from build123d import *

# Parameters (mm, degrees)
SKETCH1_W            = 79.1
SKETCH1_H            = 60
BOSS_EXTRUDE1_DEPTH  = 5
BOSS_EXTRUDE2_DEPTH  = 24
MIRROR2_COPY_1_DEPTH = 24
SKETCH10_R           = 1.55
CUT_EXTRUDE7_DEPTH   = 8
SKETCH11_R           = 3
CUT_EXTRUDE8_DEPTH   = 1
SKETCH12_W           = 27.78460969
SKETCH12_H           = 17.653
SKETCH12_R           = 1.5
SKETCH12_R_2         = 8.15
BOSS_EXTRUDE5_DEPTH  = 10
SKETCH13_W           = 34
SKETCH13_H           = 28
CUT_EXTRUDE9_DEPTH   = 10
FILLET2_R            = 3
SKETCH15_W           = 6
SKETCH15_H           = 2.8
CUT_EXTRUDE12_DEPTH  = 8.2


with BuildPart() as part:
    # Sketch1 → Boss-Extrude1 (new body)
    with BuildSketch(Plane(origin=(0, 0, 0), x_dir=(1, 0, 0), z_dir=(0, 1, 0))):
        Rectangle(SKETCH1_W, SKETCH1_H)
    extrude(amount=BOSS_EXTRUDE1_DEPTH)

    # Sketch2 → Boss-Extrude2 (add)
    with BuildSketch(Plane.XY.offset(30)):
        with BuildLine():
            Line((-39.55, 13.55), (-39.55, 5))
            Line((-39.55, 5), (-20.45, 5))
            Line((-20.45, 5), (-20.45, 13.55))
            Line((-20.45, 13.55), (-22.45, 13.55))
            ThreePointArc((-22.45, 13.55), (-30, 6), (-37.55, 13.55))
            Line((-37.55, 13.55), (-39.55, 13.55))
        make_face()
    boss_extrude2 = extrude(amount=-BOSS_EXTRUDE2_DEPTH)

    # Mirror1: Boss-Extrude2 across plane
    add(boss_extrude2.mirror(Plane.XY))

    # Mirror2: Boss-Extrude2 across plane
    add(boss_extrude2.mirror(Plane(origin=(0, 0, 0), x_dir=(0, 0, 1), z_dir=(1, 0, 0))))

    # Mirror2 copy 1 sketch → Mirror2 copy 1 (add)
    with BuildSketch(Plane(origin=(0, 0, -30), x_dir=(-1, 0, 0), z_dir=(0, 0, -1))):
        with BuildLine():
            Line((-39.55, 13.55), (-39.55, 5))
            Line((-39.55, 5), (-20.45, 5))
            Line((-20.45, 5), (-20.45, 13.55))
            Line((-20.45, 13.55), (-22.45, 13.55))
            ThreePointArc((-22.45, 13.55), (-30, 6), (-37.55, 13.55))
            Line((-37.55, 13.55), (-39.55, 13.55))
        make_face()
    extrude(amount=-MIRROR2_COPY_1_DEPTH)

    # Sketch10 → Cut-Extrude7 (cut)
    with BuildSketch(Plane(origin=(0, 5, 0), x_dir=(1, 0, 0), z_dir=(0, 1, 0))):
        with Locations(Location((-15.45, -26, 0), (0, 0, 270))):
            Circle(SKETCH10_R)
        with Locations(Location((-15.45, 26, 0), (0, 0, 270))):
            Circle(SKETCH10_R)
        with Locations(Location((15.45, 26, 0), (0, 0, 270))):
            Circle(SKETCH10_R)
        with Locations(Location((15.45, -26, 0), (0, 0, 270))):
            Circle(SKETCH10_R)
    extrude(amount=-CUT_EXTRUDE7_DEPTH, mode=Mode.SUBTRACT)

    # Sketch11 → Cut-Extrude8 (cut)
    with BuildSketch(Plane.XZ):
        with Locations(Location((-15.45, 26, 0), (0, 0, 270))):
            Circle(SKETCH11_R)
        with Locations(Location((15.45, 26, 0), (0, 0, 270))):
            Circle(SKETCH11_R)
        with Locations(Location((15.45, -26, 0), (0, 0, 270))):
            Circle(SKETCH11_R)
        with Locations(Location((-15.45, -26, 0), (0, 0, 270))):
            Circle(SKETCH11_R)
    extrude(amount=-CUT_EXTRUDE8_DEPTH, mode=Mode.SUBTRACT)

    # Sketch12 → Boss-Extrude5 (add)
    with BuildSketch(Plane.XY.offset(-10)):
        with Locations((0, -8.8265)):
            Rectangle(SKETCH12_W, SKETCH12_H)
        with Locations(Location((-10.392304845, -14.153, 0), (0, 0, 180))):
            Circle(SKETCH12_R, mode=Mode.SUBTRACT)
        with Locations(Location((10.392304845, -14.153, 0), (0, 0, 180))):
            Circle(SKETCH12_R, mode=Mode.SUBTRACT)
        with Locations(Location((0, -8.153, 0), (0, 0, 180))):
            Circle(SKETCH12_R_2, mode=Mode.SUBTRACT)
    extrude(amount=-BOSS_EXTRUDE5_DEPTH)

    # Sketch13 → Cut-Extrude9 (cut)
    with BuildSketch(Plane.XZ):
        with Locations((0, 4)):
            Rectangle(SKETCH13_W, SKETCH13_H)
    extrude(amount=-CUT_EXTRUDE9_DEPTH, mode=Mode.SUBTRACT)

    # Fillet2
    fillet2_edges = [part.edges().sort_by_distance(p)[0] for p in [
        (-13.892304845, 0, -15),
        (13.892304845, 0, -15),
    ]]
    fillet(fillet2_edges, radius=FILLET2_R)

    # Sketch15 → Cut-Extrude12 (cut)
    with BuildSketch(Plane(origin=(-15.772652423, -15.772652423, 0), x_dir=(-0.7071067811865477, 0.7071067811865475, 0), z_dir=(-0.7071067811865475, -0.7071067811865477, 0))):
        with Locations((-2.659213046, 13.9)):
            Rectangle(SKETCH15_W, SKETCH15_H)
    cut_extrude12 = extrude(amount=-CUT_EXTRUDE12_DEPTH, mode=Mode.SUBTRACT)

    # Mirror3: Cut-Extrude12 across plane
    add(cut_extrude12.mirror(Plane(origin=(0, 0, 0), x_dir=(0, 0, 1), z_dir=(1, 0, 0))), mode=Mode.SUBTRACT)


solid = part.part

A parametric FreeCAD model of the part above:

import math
import FreeCAD as App
import Part
import Sketcher
from FreeCAD import Vector


def edges_at(feature, points):
    """Names of the edges that pass closest to the given points."""
    edges = feature.Shape.Edges
    near = lambda p: min(range(len(edges)), key=lambda i: edges[i].distToShape(Part.Vertex(*p))[0])
    return sorted({f"Edge{near(p) + 1}" for p in points})


def add_polygon(sketch, points):
    """Adds a closed chain of lines whose ends are joined by coincident constraints."""
    first, n = sketch.GeometryCount, len(points)
    for a, b in zip(points, points[1:] + points[:1]):
        sketch.addGeometry(Part.LineSegment(App.Vector(*a, 0), App.Vector(*b, 0)), False)
    for i in range(n):
        sketch.addConstraint(Sketcher.Constraint("Coincident", first + i, 2, first + (i + 1) % n, 1))

doc = App.newDocument("Part")
body = doc.addObject("PartDesign::Body", "Body")

# Sketch on XZ plane
sketch1 = body.newObject("Sketcher::SketchObject", "Sketch")
sketch1.AttachmentSupport = (doc.getObject("XZ_Plane"), [""])
sketch1.MapMode = "FlatFace"
add_polygon(sketch1, [(-40, -30), (-40, 30), (40, 30), (40, -30)])  # lines 0-3
sketch1.addConstraint(Sketcher.Constraint("Vertical", 0))
sketch1.addConstraint(Sketcher.Constraint("Horizontal", 1))
sketch1.addConstraint(Sketcher.Constraint("Vertical", 2))
sketch1.addConstraint(Sketcher.Constraint("Horizontal", 3))
sketch1.addConstraint(Sketcher.Constraint("Symmetric", 0, 2, 2, 2, -1, 1))
sketch1.addConstraint(Sketcher.Constraint("DistanceY", 0, 1, 0, 2, 60.0))
sketch1.addConstraint(Sketcher.Constraint("DistanceX", 1, 1, 1, 2, 79.1))
pad1 = body.newObject("PartDesign::Pad", "Pad")
pad1.Profile = sketch1
pad1.Length = 5
pad1.Reversed = True

# Sketch on XY plane
sketch2 = body.newObject("Sketcher::SketchObject", "Sketch001")
sketch2.AttachmentSupport = (doc.getObject("XY_Plane"), [""])
sketch2.MapMode = "FlatFace"
sketch2.AttachmentOffset = App.Placement(Vector(0, 0, 30), App.Rotation())
sketch2.addGeometry(Part.LineSegment(Vector(-39.5, 13.6, 0), Vector(-39.5, 5, 0)), False)
sketch2.addGeometry(Part.LineSegment(Vector(-39.5, 5, 0), Vector(-20.4, 5, 0)), False)
sketch2.addGeometry(Part.LineSegment(Vector(-20.4, 5, 0), Vector(-20.4, 13.6, 0)), False)
sketch2.addGeometry(Part.LineSegment(Vector(-20.4, 13.6, 0), Vector(-22.4, 13.6, 0)), False)
sketch2.addGeometry(Part.ArcOfCircle(Part.Circle(Vector(-30, 13.6, 0), Vector(0, 0, 1), 7.5), math.radians(180), math.radians(360)), False)
sketch2.addGeometry(Part.LineSegment(Vector(-37.5, 13.6, 0), Vector(-39.5, 13.6, 0)), False)
sketch2.addConstraint(Sketcher.Constraint("Coincident", 0, 2, 1, 1))
sketch2.addConstraint(Sketcher.Constraint("Coincident", 1, 2, 2, 1))
sketch2.addConstraint(Sketcher.Constraint("Coincident", 2, 2, 3, 1))
sketch2.addConstraint(Sketcher.Constraint("Coincident", 3, 2, 4, 2))
sketch2.addConstraint(Sketcher.Constraint("Coincident", 4, 1, 5, 1))
sketch2.addConstraint(Sketcher.Constraint("Coincident", 5, 2, 0, 1))
sketch2.addConstraint(Sketcher.Constraint("Vertical", 0))
sketch2.addConstraint(Sketcher.Constraint("Horizontal", 1))
sketch2.addConstraint(Sketcher.Constraint("Vertical", 2))
sketch2.addConstraint(Sketcher.Constraint("Horizontal", 3))
sketch2.addConstraint(Sketcher.Constraint("Horizontal", 5))
sketch2.addConstraint(Sketcher.Constraint("Horizontal", 4, 3, 2, 2))
sketch2.addConstraint(Sketcher.Constraint("Horizontal", 3, 2, 4, 1))
sketch2.addConstraint(Sketcher.Constraint("Equal", 3, 5))
sketch2.addConstraint(Sketcher.Constraint("DistanceX", 3, 2, 3, 1, 2.0))
sketch2.addConstraint(Sketcher.Constraint("Radius", 4, 7.55))
sketch2.addConstraint(Sketcher.Constraint("DistanceX", 4, 3, -1, 1, 30.0))
sketch2.addConstraint(Sketcher.Constraint("DistanceY", -1, 1, 0, 2, 5.0))
sketch2.addConstraint(Sketcher.Constraint("DistanceY", 0, 2, 0, 1, 8.55))
pad2 = body.newObject("PartDesign::Pad", "Pad001")
pad2.Profile = sketch2
pad2.Length = 24
pad2.Reversed = True
doc.recompute()

mirrored = body.newObject("PartDesign::Mirrored", "Mirrored")
mirrored.Originals = [pad2]
mirrored.MirrorPlane = (doc.getObject("XY_Plane"), [""])
body.Tip = mirrored
doc.recompute()

mirrored2 = body.newObject("PartDesign::Mirrored", "Mirrored001")
mirrored2.Originals = [pad2]
mirrored2.MirrorPlane = (doc.getObject("YZ_Plane"), [""])
body.Tip = mirrored2

# Sketch on XY plane
sketch3 = body.newObject("Sketcher::SketchObject", "Sketch002")
sketch3.AttachmentSupport = (doc.getObject("XY_Plane"), [""])
sketch3.MapMode = "FlatFace"
sketch3.AttachmentOffset = App.Placement(Vector(0, 0, -30), App.Rotation())
sketch3.addGeometry(Part.LineSegment(Vector(39.5, 13.6, 0), Vector(39.5, 5, 0)), False)
sketch3.addGeometry(Part.LineSegment(Vector(39.5, 5, 0), Vector(20.4, 5, 0)), False)
sketch3.addGeometry(Part.LineSegment(Vector(20.4, 5, 0), Vector(20.4, 13.6, 0)), False)
sketch3.addGeometry(Part.LineSegment(Vector(20.4, 13.6, 0), Vector(22.4, 13.6, 0)), False)
sketch3.addGeometry(Part.ArcOfCircle(Part.Circle(Vector(30, 13.6, 0), Vector(0, 0, 1), 7.5), math.radians(180), math.radians(360)), False)
sketch3.addGeometry(Part.LineSegment(Vector(37.5, 13.6, 0), Vector(39.5, 13.6, 0)), False)
sketch3.addConstraint(Sketcher.Constraint("Coincident", 0, 2, 1, 1))
sketch3.addConstraint(Sketcher.Constraint("Coincident", 1, 2, 2, 1))
sketch3.addConstraint(Sketcher.Constraint("Coincident", 2, 2, 3, 1))
sketch3.addConstraint(Sketcher.Constraint("Coincident", 3, 2, 4, 1))
sketch3.addConstraint(Sketcher.Constraint("Coincident", 4, 2, 5, 1))
sketch3.addConstraint(Sketcher.Constraint("Coincident", 5, 2, 0, 1))
sketch3.addConstraint(Sketcher.Constraint("Vertical", 0))
sketch3.addConstraint(Sketcher.Constraint("Horizontal", 1))
sketch3.addConstraint(Sketcher.Constraint("Vertical", 2))
sketch3.addConstraint(Sketcher.Constraint("Horizontal", 3))
sketch3.addConstraint(Sketcher.Constraint("Horizontal", 5))
sketch3.addConstraint(Sketcher.Constraint("Horizontal", 4, 3, 2, 2))
sketch3.addConstraint(Sketcher.Constraint("Horizontal", 3, 2, 4, 2))
sketch3.addConstraint(Sketcher.Constraint("Equal", 3, 5))
sketch3.addConstraint(Sketcher.Constraint("DistanceX", 3, 1, 3, 2, 2.0))
sketch3.addConstraint(Sketcher.Constraint("Radius", 4, 7.55))
sketch3.addConstraint(Sketcher.Constraint("DistanceX", -1, 1, 4, 3, 30.0))
sketch3.addConstraint(Sketcher.Constraint("DistanceY", -1, 1, 0, 2, 5.0))
sketch3.addConstraint(Sketcher.Constraint("DistanceY", 0, 2, 0, 1, 8.55))
pad3 = body.newObject("PartDesign::Pad", "Pad002")
pad3.Profile = sketch3
pad3.Length = 24

# Sketch on XZ plane
sketch4 = body.newObject("Sketcher::SketchObject", "Sketch003")
sketch4.AttachmentSupport = (doc.getObject("XZ_Plane"), [""])
sketch4.MapMode = "FlatFace"
sketch4.AttachmentOffset = App.Placement(Vector(0, 0, -5), App.Rotation())
sketch4.addGeometry(Part.Circle(Vector(-15.4, 26, 0), Vector(0, 0, 1), 1.6), False)
sketch4.addGeometry(Part.Circle(Vector(-15.4, -26, 0), Vector(0, 0, 1), 1.6), False)
sketch4.addGeometry(Part.Circle(Vector(15.4, -26, 0), Vector(0, 0, 1), 1.6), False)
sketch4.addGeometry(Part.Circle(Vector(15.4, 26, 0), Vector(0, 0, 1), 1.6), False)
sketch4.addConstraint(Sketcher.Constraint("Equal", 0, 1))
sketch4.addConstraint(Sketcher.Constraint("Equal", 1, 2))
sketch4.addConstraint(Sketcher.Constraint("Equal", 2, 3))
sketch4.addConstraint(Sketcher.Constraint("Symmetric", 0, 3, 2, 3, -1, 1))
sketch4.addConstraint(Sketcher.Constraint("Symmetric", 1, 3, 3, 3, -1, 1))
sketch4.addConstraint(Sketcher.Constraint("Symmetric", 1, 3, 2, 3, -2))
sketch4.addConstraint(Sketcher.Constraint("Diameter", 0, 3.1))
sketch4.addConstraint(Sketcher.Constraint("DistanceY", -1, 1, 0, 3, 26.0))
sketch4.addConstraint(Sketcher.Constraint("DistanceX", 1, 3, 2, 3, 30.9))
pocket1 = body.newObject("PartDesign::Pocket", "Pocket")
pocket1.Profile = sketch4
pocket1.Length = 8
pocket1.Reversed = True

# Sketch on XZ plane
sketch5 = body.newObject("Sketcher::SketchObject", "Sketch004")
sketch5.AttachmentSupport = (doc.getObject("XZ_Plane"), [""])
sketch5.MapMode = "FlatFace"
sketch5.addGeometry(Part.Circle(Vector(-15.4, 26, 0), Vector(0, 0, 1), 3), False)
sketch5.addGeometry(Part.Circle(Vector(15.4, 26, 0), Vector(0, 0, 1), 3), False)
sketch5.addGeometry(Part.Circle(Vector(15.4, -26, 0), Vector(0, 0, 1), 3), False)
sketch5.addGeometry(Part.Circle(Vector(-15.4, -26, 0), Vector(0, 0, 1), 3), False)
sketch5.addConstraint(Sketcher.Constraint("Equal", 0, 1))
sketch5.addConstraint(Sketcher.Constraint("Equal", 1, 2))
sketch5.addConstraint(Sketcher.Constraint("Equal", 2, 3))
sketch5.addConstraint(Sketcher.Constraint("Symmetric", 0, 3, 2, 3, -1, 1))
sketch5.addConstraint(Sketcher.Constraint("Symmetric", 1, 3, 3, 3, -1, 1))
sketch5.addConstraint(Sketcher.Constraint("Symmetric", 0, 3, 1, 3, -2))
sketch5.addConstraint(Sketcher.Constraint("Diameter", 0, 6.0))
sketch5.addConstraint(Sketcher.Constraint("DistanceY", -1, 1, 0, 3, 26.0))
sketch5.addConstraint(Sketcher.Constraint("DistanceX", 0, 3, 1, 3, 30.9))
pocket2 = body.newObject("PartDesign::Pocket", "Pocket001")
pocket2.Profile = sketch5
pocket2.Length = 1

# Sketch on XY plane
sketch6 = body.newObject("Sketcher::SketchObject", "Sketch005")
sketch6.AttachmentSupport = (doc.getObject("XY_Plane"), [""])
sketch6.MapMode = "FlatFace"
sketch6.AttachmentOffset = App.Placement(Vector(0, 0, -10), App.Rotation())
add_polygon(sketch6, [(-13.9, 0), (-13.9, -17.7), (13.9, -17.7), (13.9, 0)])  # lines 0-3
sketch6.addGeometry(Part.Circle(Vector(-10.4, -14.2, 0), Vector(0, 0, 1), 1.5), False)  # 4
sketch6.addGeometry(Part.Circle(Vector(10.4, -14.2, 0), Vector(0, 0, 1), 1.5), False)  # 5
sketch6.addGeometry(Part.Circle(Vector(0, -8.2, 0), Vector(0, 0, 1), 8.2), False)  # 6
sketch6.addConstraint(Sketcher.Constraint("Vertical", 0))
sketch6.addConstraint(Sketcher.Constraint("Horizontal", 1))
sketch6.addConstraint(Sketcher.Constraint("Vertical", 2))
sketch6.addConstraint(Sketcher.Constraint("Horizontal", 3))
sketch6.addConstraint(Sketcher.Constraint("Equal", 4, 5))
sketch6.addConstraint(Sketcher.Constraint("Symmetric", 2, 2, 3, 2, -1, 1))
sketch6.addConstraint(Sketcher.Constraint("Symmetric", 4, 3, 5, 3, -2))
sketch6.addConstraint(Sketcher.Constraint("PointOnObject", 6, 3, -2))
sketch6.addConstraint(Sketcher.Constraint("Diameter", 4, 3.0))
sketch6.addConstraint(Sketcher.Constraint("Diameter", 6, 16.3))
sketch6.addConstraint(Sketcher.Constraint("DistanceY", 4, 3, 6, 3, 6.0))
sketch6.addConstraint(Sketcher.Constraint("DistanceX", 0, 2, 4, 3, 3.5))
sketch6.addConstraint(Sketcher.Constraint("DistanceY", 0, 2, 4, 3, 3.5))
sketch6.addConstraint(Sketcher.Constraint("DistanceY", 0, 2, 0, 1, 17.653))
sketch6.addConstraint(Sketcher.Constraint("DistanceX", 1, 1, 1, 2, 27.78461))
pad4 = body.newObject("PartDesign::Pad", "Pad003")
pad4.Profile = sketch6
pad4.Length = 10
pad4.Reversed = True

# Sketch on XZ plane
sketch7 = body.newObject("Sketcher::SketchObject", "Sketch006")
sketch7.AttachmentSupport = (doc.getObject("XZ_Plane"), [""])
sketch7.MapMode = "FlatFace"
add_polygon(sketch7, [(-17, 18), (-17, -10), (17, -10), (17, 18)])  # lines 0-3
sketch7.addConstraint(Sketcher.Constraint("Vertical", 0))
sketch7.addConstraint(Sketcher.Constraint("Horizontal", 1))
sketch7.addConstraint(Sketcher.Constraint("Vertical", 2))
sketch7.addConstraint(Sketcher.Constraint("Horizontal", 3))
sketch7.addConstraint(Sketcher.Constraint("DistanceX", 1, 1, 1, 2, 34.0))
sketch7.addConstraint(Sketcher.Constraint("DistanceY", 0, 2, 0, 1, 28.0))
sketch7.addConstraint(Sketcher.Constraint("DistanceX", 0, 2, -1, 1, 17.0))
sketch7.addConstraint(Sketcher.Constraint("DistanceY", 0, 2, -1, 1, 10.0))
pocket3 = body.newObject("PartDesign::Pocket", "Pocket002")
pocket3.Profile = sketch7
pocket3.Length = 10
doc.recompute()

fillet = body.newObject("PartDesign::Fillet", "Fillet")
fillet.Base = (pocket3, edges_at(pocket3, [(-13.892, 0, -15), (13.892, 0, -15)]))
fillet.Radius = 3

# Sketch on an angled plane
sketch8 = body.newObject("Sketcher::SketchObject", "Sketch007")
sketch8.Placement = App.Placement(Vector(-15.772652, -15.772652, 0), App.Rotation(Vector(-0.707106781, 0.707106781, 0), Vector(0, 0, -0.999999999), Vector(-0.707106781, -0.707106781, 0), "ZXY"))
add_polygon(sketch8, [(-5.7, 15.3), (-5.7, 12.5), (0.3, 12.5), (0.3, 15.3)])  # lines 0-3
sketch8.addConstraint(Sketcher.Constraint("Vertical", 0))
sketch8.addConstraint(Sketcher.Constraint("Horizontal", 1))
sketch8.addConstraint(Sketcher.Constraint("Vertical", 2))
sketch8.addConstraint(Sketcher.Constraint("Horizontal", 3))
sketch8.addConstraint(Sketcher.Constraint("DistanceX", 1, 1, 1, 2, 6.0))
sketch8.addConstraint(Sketcher.Constraint("DistanceY", 0, 2, 0, 1, 2.8))
sketch8.addConstraint(Sketcher.Constraint("DistanceY", -1, 1, 0, 2, 12.5))
sketch8.addConstraint(Sketcher.Constraint("DistanceX", 0, 2, -1, 1, 5.659213))
pocket4 = body.newObject("PartDesign::Pocket", "Pocket003")
pocket4.Profile = sketch8
pocket4.Length = 8.2
doc.recompute()

mirrored3 = body.newObject("PartDesign::Mirrored", "Mirrored002")
mirrored3.Originals = [pocket4]
mirrored3.MirrorPlane = (doc.getObject("YZ_Plane"), [""])
body.Tip = mirrored3

doc.recompute()
